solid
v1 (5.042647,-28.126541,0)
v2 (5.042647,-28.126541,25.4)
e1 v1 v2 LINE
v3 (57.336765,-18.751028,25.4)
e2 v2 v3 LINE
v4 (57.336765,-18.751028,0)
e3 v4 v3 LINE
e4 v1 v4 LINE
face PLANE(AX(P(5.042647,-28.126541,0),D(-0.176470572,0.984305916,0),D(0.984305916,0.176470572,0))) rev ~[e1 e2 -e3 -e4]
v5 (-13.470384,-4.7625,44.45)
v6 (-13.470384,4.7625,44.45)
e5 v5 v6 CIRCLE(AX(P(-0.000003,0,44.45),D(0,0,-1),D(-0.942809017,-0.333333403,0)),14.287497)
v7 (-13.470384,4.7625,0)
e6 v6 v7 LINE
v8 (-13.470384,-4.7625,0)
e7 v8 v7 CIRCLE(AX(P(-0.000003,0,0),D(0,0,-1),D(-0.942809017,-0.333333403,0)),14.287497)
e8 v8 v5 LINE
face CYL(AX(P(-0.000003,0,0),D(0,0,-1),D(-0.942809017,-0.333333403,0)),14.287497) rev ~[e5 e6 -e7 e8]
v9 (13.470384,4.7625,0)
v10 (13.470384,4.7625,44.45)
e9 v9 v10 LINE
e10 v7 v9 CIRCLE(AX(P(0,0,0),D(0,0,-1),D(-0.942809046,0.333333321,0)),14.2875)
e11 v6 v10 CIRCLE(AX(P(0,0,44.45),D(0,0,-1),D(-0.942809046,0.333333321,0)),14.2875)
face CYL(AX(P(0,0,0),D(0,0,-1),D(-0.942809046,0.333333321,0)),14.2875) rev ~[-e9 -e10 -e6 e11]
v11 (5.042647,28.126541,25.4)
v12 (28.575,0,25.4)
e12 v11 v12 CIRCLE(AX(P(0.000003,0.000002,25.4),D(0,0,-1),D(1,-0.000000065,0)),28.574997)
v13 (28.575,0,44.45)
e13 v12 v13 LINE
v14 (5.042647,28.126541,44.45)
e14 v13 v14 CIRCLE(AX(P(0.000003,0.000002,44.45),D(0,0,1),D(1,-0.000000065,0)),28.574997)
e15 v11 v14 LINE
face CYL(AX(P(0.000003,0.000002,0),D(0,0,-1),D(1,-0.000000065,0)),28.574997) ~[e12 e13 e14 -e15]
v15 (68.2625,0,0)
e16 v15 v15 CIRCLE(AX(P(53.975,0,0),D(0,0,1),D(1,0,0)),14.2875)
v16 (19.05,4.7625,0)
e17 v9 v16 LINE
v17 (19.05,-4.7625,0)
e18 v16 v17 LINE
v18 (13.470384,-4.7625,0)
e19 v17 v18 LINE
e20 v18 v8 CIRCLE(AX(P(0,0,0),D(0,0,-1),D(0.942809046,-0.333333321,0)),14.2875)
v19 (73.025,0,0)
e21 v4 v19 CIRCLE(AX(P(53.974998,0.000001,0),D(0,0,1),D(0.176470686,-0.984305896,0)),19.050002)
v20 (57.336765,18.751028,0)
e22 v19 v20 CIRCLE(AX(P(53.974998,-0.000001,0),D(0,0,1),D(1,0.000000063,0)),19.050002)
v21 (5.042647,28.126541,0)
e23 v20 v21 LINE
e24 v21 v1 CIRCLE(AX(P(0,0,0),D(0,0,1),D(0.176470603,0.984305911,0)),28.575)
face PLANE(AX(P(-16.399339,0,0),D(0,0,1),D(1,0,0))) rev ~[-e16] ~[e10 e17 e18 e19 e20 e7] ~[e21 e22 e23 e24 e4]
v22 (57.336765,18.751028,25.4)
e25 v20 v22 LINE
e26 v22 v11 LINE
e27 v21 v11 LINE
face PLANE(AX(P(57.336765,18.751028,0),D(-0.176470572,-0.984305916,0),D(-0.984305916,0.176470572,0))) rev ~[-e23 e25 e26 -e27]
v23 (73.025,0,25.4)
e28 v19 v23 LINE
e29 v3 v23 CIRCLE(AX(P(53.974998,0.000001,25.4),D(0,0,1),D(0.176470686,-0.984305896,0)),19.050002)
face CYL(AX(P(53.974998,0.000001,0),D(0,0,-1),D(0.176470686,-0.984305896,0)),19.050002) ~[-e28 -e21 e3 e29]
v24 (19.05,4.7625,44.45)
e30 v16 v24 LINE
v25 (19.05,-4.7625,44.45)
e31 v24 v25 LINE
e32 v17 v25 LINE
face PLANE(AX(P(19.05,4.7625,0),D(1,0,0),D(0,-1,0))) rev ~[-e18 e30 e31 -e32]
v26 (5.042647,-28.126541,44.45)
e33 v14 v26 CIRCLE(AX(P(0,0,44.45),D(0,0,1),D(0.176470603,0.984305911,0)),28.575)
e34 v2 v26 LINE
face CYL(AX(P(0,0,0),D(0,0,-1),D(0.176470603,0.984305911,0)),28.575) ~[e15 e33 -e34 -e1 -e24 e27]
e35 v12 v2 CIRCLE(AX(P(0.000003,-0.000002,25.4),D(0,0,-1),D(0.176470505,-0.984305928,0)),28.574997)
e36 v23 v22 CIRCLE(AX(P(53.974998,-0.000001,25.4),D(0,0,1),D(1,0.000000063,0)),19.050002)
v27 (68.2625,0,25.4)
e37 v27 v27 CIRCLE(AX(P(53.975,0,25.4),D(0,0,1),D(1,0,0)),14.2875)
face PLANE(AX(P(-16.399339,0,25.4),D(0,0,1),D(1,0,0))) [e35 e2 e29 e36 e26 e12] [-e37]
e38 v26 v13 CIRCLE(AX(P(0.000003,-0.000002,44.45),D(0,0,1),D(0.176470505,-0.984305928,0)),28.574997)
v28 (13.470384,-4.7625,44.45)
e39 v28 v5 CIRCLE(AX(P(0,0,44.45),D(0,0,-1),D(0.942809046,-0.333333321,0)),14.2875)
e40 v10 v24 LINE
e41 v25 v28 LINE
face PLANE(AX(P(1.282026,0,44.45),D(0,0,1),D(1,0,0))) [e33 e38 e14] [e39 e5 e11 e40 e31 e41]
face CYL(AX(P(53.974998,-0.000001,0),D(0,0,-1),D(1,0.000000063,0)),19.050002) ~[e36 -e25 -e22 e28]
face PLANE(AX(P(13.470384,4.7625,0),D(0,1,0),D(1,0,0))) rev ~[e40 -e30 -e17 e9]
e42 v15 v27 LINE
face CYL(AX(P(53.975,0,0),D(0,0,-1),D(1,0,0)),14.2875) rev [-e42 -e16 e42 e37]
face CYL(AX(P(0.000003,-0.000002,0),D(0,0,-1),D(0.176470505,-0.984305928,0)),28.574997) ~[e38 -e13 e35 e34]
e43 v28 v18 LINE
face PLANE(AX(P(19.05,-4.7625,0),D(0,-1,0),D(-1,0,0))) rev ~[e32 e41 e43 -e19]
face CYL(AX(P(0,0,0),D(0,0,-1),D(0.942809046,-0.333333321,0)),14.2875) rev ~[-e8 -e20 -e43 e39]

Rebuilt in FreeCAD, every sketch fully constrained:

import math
import FreeCAD as App
import Part
import Sketcher
from FreeCAD import Vector
Q = App.Units.Quantity

doc = App.newDocument("Part")
body = doc.addObject("PartDesign::Body", "Body")

sketch1 = doc.addObject("Sketcher::SketchObject", "Sketch")
body.addObject(sketch1)
sketch1.AttachmentSupport = (doc.XY_Plane, [""])
sketch1.MapMode = "FlatFace"
sketch1.addGeometry([
    Part.ArcOfCircle(Part.Circle(Vector(0, 0, 0), Vector(0, 0, 1), 28.575), math.radians(79.835751), math.radians(280.164249)),
    Part.LineSegment(Vector(5.042647, -28.126541, 0), Vector(57.336765, -18.751028, 0)),
    Part.ArcOfCircle(Part.Circle(Vector(53.974998, 0.000001, 0), Vector(0, 0, 1), 19.050002), math.radians(-79.835746), math.radians(-0.000004)),
    Part.ArcOfCircle(Part.Circle(Vector(53.974998, -0.000001, 0), Vector(0, 0, 1), 19.050002), math.radians(0.000004), math.radians(79.835746)),
    Part.LineSegment(Vector(57.336765, 18.751028, 0), Vector(5.042647, 28.126541, 0)),
    Part.LineSegment(Vector(-19.05, 4.7625, 0), Vector(-13.470384, 4.7625, 0)),
    Part.ArcOfCircle(Part.Circle(Vector(0, 0, 0), Vector(0, 0, 1), 14.2875), math.radians(19.47122), math.radians(160.52878)),
    Part.LineSegment(Vector(13.470384, 4.7625, 0), Vector(19.05, 4.7625, 0)),
    Part.LineSegment(Vector(19.05, 4.7625, 0), Vector(19.05, -4.7625, 0)),
    Part.LineSegment(Vector(19.05, -4.7625, 0), Vector(13.470384, -4.7625, 0)),
    Part.ArcOfCircle(Part.Circle(Vector(0, 0, 0), Vector(0, 0, 1), 14.2875), math.radians(-160.52878), math.radians(-19.47122)),
    Part.LineSegment(Vector(-13.470384, -4.7625, 0), Vector(-19.05, -4.7625, 0)),
    Part.LineSegment(Vector(-19.05, -4.7625, 0), Vector(-19.05, 4.7625, 0)),
    Part.Circle(Vector(53.975, 0, 0), Vector(0, 0, 1), 14.2875),
], False)
sketch1.addConstraint([
    Sketcher.Constraint("Tangent", 0, 2, 1, 1),
    Sketcher.Constraint("Tangent", 1, 2, 2, 1),
    Sketcher.Constraint("Tangent", 2, 2, 3, 1),
    Sketcher.Constraint("Tangent", 3, 2, 4, 1),
    Sketcher.Constraint("Tangent", 4, 2, 0, 1),
    Sketcher.Constraint("Coincident", 5, 2, 6, 2),
    Sketcher.Constraint("Coincident", 6, 1, 7, 1),
    Sketcher.Constraint("Coincident", 7, 2, 8, 1),
    Sketcher.Constraint("Coincident", 8, 2, 9, 1),
    Sketcher.Constraint("Coincident", 9, 2, 10, 2),
    Sketcher.Constraint("Coincident", 10, 1, 11, 1),
    Sketcher.Constraint("Coincident", 11, 2, 12, 1),
    Sketcher.Constraint("Coincident", 12, 2, 5, 1),
    Sketcher.Constraint("Horizontal", 5),
    Sketcher.Constraint("Horizontal", 7),
    Sketcher.Constraint("Vertical", 8),
    Sketcher.Constraint("Horizontal", 9),
    Sketcher.Constraint("Horizontal", 11),
    Sketcher.Constraint("Vertical", 12),
    Sketcher.Constraint("Coincident", 0, 3, -1, 1),
    Sketcher.Constraint("Coincident", 6, 3, -1, 1),
    Sketcher.Constraint("Coincident", 10, 3, -1, 1),
    Sketcher.Constraint("Coincident", 13, 3, 2, 3),
    Sketcher.Constraint("Equal", 2, 3),
    Sketcher.Constraint("Equal", 6, 10),
    Sketcher.Constraint("Equal", 10, 13),
    Sketcher.Constraint("Symmetric", 7, 2, 11, 2, -1, 1),
    Sketcher.Constraint("PointOnObject", 2, 3, -1),
    Sketcher.Constraint("PointOnObject", 2, 2, -1),
    Sketcher.Constraint("Horizontal", 5, 2, 6, 1),
    Sketcher.Constraint("Horizontal", 9, 2, 10, 1),
    Sketcher.Constraint("Radius", 2, Q("0.7500001 in")),
    Sketcher.Constraint("Diameter", 13, Q("1.125 in")),
    Sketcher.Constraint("Radius", 0, Q("1.125 in")),
    Sketcher.Constraint("DistanceY", 8, 2, 8, 1, Q("0.375 in")),
    Sketcher.Constraint("DistanceX", -1, 1, 7, 2, Q("0.75 in")),
    Sketcher.Constraint("DistanceX", -1, 1, 2, 3, Q("2.1249999 in")),
])
pad1 = doc.addObject("PartDesign::Pad", "Pad")
body.addObject(pad1)
pad1.Profile = sketch1
pad1.Length = Q("1 in")

sketch2 = doc.addObject("Sketcher::SketchObject", "Sketch001")
body.addObject(sketch2)
sketch2.AttachmentSupport = (doc.XY_Plane, [""])
sketch2.MapMode = "FlatFace"
sketch2.addGeometry([
    Part.ArcOfCircle(Part.Circle(Vector(0.000003, -0.000002, 0), Vector(0, 0, 1), 28.574997), math.radians(-79.835756), math.radians(0.000004)),
    Part.ArcOfCircle(Part.Circle(Vector(0.000003, 0.000002, 0), Vector(0, 0, 1), 28.574997), math.radians(-0.000004), math.radians(79.835756)),
    Part.ArcOfCircle(Part.Circle(Vector(0, 0, 0), Vector(0, 0, 1), 28.575), math.radians(79.835751), math.radians(280.164249)),
    Part.ArcOfCircle(Part.Circle(Vector(0, 0, 0), Vector(0, 0, 1), 14.2875), math.radians(-160.52878), math.radians(-19.47122)),
    Part.ArcOfCircle(Part.Circle(Vector(-0.000003, 0, 0), Vector(0, 0, 1), 14.287497), math.radians(160.528775), math.radians(199.471225)),
    Part.ArcOfCircle(Part.Circle(Vector(0, 0, 0), Vector(0, 0, 1), 14.2875), math.radians(19.47122), math.radians(160.52878)),
    Part.LineSegment(Vector(13.470384, 4.7625, 0), Vector(19.05, 4.7625, 0)),
    Part.LineSegment(Vector(19.05, 4.7625, 0), Vector(19.05, -4.7625, 0)),
    Part.LineSegment(Vector(19.05, -4.7625, 0), Vector(13.470384, -4.7625, 0)),
], False)
sketch2.addConstraint([
    Sketcher.Constraint("Tangent", 0, 2, 1, 1),
    Sketcher.Constraint("Tangent", 1, 2, 2, 1),
    Sketcher.Constraint("Tangent", 2, 2, 0, 1),
    Sketcher.Constraint("Tangent", 3, 1, 4, 2),
    Sketcher.Constraint("Tangent", 4, 1, 5, 2),
    Sketcher.Constraint("Coincident", 5, 1, 6, 1),
    Sketcher.Constraint("Coincident", 6, 2, 7, 1),
    Sketcher.Constraint("Coincident", 7, 2, 8, 1),
    Sketcher.Constraint("Coincident", 8, 2, 3, 2),
    Sketcher.Constraint("Horizontal", 6),
    Sketcher.Constraint("Vertical", 7),
    Sketcher.Constraint("Horizontal", 8),
    Sketcher.Constraint("Coincident", 0, 3, -1, 1),
    Sketcher.Constraint("Coincident", 3, 3, -1, 1),
    Sketcher.Constraint("Coincident", 5, 3, -1, 1),
    Sketcher.Constraint("PointOnObject", 0, 2, -1),
    Sketcher.Constraint("Horizontal", 4, 1, 5, 1),
    Sketcher.Constraint("Horizontal", 3, 1, 7, 2),
    Sketcher.Constraint("Vertical", 1, 2, 2, 2),
    Sketcher.Constraint("Vertical", 3, 1, 4, 1),
    Sketcher.Constraint("Radius", 0, Q("1.1249999 in")),
    Sketcher.Constraint("Radius", 3, Q("0.5625 in")),
    Sketcher.Constraint("DistanceY", 7, 2, 7, 1, Q("0.375 in")),
    Sketcher.Constraint("DistanceX", -1, 1, 6, 2, Q("0.75 in")),
    Sketcher.Constraint("DistanceY", -1, 1, 1, 2, 28.126541),
])
pad2 = doc.addObject("PartDesign::Pad", "Pad001")
body.addObject(pad2)
pad2.Profile = sketch2
pad2.Length = Q("1.75 in")

doc.recompute()
